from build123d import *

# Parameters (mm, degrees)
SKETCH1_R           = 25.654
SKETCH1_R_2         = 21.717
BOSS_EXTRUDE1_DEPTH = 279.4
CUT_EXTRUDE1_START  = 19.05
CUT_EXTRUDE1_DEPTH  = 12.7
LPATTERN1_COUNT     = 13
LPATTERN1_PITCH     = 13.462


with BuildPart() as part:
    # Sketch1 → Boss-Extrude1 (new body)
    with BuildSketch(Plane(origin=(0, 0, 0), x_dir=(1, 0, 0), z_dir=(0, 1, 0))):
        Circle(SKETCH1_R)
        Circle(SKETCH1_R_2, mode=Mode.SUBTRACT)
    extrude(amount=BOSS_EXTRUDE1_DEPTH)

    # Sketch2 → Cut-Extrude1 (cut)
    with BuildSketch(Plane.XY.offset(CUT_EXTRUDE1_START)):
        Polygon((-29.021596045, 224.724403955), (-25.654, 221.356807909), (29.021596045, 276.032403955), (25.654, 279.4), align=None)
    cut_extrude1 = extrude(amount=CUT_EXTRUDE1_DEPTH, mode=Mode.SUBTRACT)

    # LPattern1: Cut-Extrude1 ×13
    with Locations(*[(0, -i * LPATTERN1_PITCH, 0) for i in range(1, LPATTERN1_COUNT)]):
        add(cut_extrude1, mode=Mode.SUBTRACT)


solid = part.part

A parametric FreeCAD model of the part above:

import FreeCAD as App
import Part
import Sketcher
Q = App.Units.Quantity


def add_polygon(sketch, points):
    """Adds a closed chain of lines whose ends are joined by coincident constraints."""
    first, n = sketch.GeometryCount, len(points)
    for a, b in zip(points, points[1:] + points[:1]):
        sketch.addGeometry(Part.LineSegment(App.Vector(*a, 0), App.Vector(*b, 0)), False)
    for i in range(n):
        sketch.addConstraint(Sketcher.Constraint("Coincident", first + i, 2, first + (i + 1) % n, 1))

doc = App.newDocument("Part")
body = doc.addObject("PartDesign::Body", "Body")

# Sketch on XZ plane
sketch1 = body.newObject("Sketcher::SketchObject", "Sketch")
sketch1.AttachmentSupport = (doc.getObject("XZ_Plane"), [""])
sketch1.MapMode = "FlatFace"
sketch1.addGeometry([
    Part.Circle(App.Vector(0, 0, 0), App.Vector(0, 0, 1), 26),
    Part.Circle(App.Vector(0, 0, 0), App.Vector(0, 0, 1), 22),
], False)
sketch1.addConstraint([
    Sketcher.Constraint("Coincident", 0, 3, -1, 1),
    Sketcher.Constraint("Coincident", 1, 3, -1, 1),
    Sketcher.Constraint("Diameter", 0, Q("2.02 in")),
    Sketcher.Constraint("Diameter", 1, Q("1.71 in")),
])
pad1 = body.newObject("PartDesign::Pad", "Pad")
pad1.Profile = sketch1
pad1.Length = Q("11 in")
pad1.Reversed = True

# Sketch on XY plane
sketch2 = body.newObject("Sketcher::SketchObject", "Sketch001")
sketch2.AttachmentSupport = (doc.getObject("XY_Plane"), [""])
sketch2.MapMode = "FlatFace"
sketch2.AttachmentOffset = App.Placement(App.Vector(0, 0, 0.75 * 25.4), App.Rotation())
add_polygon(sketch2, [(-29, 224.7), (-25.7, 221.4), (29, 276), (25.7, 279.4)])  # lines 0-3
sketch2.addConstraint([
    Sketcher.Constraint("Perpendicular", 0, 1),
    Sketcher.Constraint("Perpendicular", 1, 2),
    Sketcher.Constraint("Perpendicular", 2, 3),
    Sketcher.Constraint("DistanceY", -1, 1, 2, 2, Q("11 in")),
    Sketcher.Constraint("Angle", 0, Q("-45 deg")),
    Sketcher.Constraint("DistanceX", 0, 2, -1, 1, Q("1.01 in")),
    Sketcher.Constraint("DistanceX", -1, 1, 2, 2, Q("1.01 in")),
    Sketcher.Constraint("Distance", 0, Q("0.1875 in")),
])
pocket1 = body.newObject("PartDesign::Pocket", "Pocket")
pocket1.Profile = sketch2
pocket1.Length = Q("0.5 in")
pocket1.Reversed = True
doc.recompute()

linearpattern = body.newObject("PartDesign::LinearPattern", "LinearPattern")
linearpattern.Originals = [pocket1]
linearpattern.Direction = (doc.getObject("Y_Axis"), [""])
linearpattern.Mode = "offset"
linearpattern.Offset = Q("0.53 in")
linearpattern.Occurrences = 13
linearpattern.Reversed = True
body.Tip = linearpattern

doc.recompute()
